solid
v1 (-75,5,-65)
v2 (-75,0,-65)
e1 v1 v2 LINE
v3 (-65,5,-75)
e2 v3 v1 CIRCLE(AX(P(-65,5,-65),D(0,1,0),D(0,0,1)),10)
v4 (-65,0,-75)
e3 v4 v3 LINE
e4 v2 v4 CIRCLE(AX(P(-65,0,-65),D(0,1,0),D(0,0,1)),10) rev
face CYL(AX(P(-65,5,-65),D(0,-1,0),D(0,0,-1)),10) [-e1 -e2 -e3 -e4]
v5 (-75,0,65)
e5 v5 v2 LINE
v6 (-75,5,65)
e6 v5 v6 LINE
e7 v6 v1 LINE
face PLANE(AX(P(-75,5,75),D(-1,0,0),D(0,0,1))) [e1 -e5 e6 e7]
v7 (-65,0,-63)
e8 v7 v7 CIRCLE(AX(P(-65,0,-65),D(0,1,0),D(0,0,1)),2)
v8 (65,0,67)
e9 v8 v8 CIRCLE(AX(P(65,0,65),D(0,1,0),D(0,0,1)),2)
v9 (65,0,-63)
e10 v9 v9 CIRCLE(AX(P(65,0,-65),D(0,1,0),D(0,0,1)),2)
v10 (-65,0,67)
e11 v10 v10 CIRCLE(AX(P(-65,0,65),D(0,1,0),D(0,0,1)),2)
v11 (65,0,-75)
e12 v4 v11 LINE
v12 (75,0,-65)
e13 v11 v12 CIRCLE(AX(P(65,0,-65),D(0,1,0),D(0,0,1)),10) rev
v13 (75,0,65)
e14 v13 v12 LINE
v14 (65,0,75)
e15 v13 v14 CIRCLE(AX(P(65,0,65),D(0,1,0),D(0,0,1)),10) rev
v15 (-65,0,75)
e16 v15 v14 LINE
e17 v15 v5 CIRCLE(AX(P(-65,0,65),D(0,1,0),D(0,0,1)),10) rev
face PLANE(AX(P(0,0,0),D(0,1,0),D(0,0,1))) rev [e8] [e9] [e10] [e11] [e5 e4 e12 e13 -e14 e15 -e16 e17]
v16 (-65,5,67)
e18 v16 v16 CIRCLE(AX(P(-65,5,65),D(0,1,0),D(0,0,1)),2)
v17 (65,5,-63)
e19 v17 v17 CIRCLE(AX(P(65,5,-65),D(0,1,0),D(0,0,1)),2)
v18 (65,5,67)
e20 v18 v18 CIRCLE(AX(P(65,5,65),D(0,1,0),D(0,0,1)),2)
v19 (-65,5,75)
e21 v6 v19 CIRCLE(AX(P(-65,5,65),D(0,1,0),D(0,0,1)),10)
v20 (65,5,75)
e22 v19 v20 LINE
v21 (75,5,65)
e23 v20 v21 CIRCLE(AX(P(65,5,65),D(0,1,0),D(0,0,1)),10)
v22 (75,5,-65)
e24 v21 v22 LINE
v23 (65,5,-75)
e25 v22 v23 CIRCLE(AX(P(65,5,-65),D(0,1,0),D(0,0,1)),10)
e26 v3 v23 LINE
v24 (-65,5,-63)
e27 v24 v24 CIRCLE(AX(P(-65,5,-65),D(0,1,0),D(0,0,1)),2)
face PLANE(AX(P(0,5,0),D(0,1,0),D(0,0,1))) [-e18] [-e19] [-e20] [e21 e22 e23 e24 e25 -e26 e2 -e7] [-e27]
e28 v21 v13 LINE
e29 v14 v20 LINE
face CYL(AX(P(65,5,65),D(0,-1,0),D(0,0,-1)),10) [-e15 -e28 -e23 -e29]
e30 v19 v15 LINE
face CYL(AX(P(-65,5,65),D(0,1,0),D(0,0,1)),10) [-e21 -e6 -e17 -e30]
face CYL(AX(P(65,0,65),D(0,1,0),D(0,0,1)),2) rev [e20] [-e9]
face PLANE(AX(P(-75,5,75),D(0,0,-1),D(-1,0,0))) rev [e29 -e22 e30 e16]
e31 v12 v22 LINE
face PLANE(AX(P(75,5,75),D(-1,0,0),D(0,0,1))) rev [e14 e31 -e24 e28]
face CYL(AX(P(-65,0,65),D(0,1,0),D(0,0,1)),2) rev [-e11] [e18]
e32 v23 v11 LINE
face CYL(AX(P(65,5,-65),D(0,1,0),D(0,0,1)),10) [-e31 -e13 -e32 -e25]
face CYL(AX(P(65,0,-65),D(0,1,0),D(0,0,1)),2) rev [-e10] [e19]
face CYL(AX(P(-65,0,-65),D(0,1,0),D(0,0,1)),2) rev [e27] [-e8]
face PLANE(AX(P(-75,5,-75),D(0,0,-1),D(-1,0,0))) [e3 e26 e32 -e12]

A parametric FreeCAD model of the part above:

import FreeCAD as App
import Part
import Sketcher

V = App.Vector
Q = App.Units.Quantity


def edges_at(feature, points):
    """Names of the edges that pass closest to the given points."""
    edges = feature.Shape.Edges
    near = lambda p: min(range(len(edges)), key=lambda i: edges[i].distToShape(Part.Vertex(*p))[0])
    return sorted({f"Edge{near(p) + 1}" for p in points})

doc = App.newDocument("Part")
body = doc.addObject("PartDesign::Body", "Body")

# Sketch on XZ plane
sketch1 = body.newObject("Sketcher::SketchObject", "Sketch")
sketch1.AttachmentSupport = (doc.getObject("XZ_Plane"), [""])
sketch1.MapMode = "FlatFace"
sketch1.addGeometry(Part.LineSegment(V(-75, -75, 0), V(-75, 75, 0)), False)
sketch1.addGeometry(Part.LineSegment(V(-75, 75, 0), V(75, 75, 0)), False)
sketch1.addGeometry(Part.LineSegment(V(75, 75, 0), V(75, -75, 0)), False)
sketch1.addGeometry(Part.LineSegment(V(75, -75, 0), V(-75, -75, 0)), False)
sketch1.addConstraint(Sketcher.Constraint("Coincident", 0, 2, 1, 1))
sketch1.addConstraint(Sketcher.Constraint("Coincident", 1, 2, 2, 1))
sketch1.addConstraint(Sketcher.Constraint("Coincident", 2, 2, 3, 1))
sketch1.addConstraint(Sketcher.Constraint("Coincident", 3, 2, 0, 1))
sketch1.addConstraint(Sketcher.Constraint("Vertical", 0))
sketch1.addConstraint(Sketcher.Constraint("Horizontal", 1))
sketch1.addConstraint(Sketcher.Constraint("Vertical", 2))
sketch1.addConstraint(Sketcher.Constraint("Horizontal", 3))
sketch1.addConstraint(Sketcher.Constraint("Symmetric", 0, 2, 2, 2, -1, 1))
sketch1.addConstraint(Sketcher.Constraint("Equal", 3, 0))
sketch1.addConstraint(Sketcher.Constraint("DistanceX", 1, 1, 1, 2, Q("150 mm")))
pad1 = body.newObject("PartDesign::Pad", "Pad")
pad1.Profile = sketch1
pad1.Length = 5
pad1.Reversed = True
doc.recompute()

fillet = body.newObject("PartDesign::Fillet", "Fillet")
fillet.Base = (pad1, edges_at(pad1, [
    (-75, 2.5, -75),
    (-75, 2.5, 75),
    (75, 2.5, 75),
    (75, 2.5, -75),
]))
fillet.Radius = 10

# Sketch on XZ plane
sketch2 = body.newObject("Sketcher::SketchObject", "Sketch001")
sketch2.AttachmentSupport = (doc.getObject("XZ_Plane"), [""])
sketch2.MapMode = "FlatFace"
sketch2.AttachmentOffset = App.Placement(V(0, 0, -5), App.Rotation())
sketch2.addGeometry(Part.Circle(V(65, -65, 0), V(0, 0, 1), 2), False)
sketch2.addGeometry(Part.Circle(V(-65, -65, 0), V(0, 0, 1), 2), False)
sketch2.addGeometry(Part.Circle(V(-65, 65, 0), V(0, 0, 1), 2), False)
sketch2.addGeometry(Part.Circle(V(65, 65, 0), V(0, 0, 1), 2), False)
sketch2.addConstraint(Sketcher.Constraint("Equal", 0, 1))
sketch2.addConstraint(Sketcher.Constraint("Equal", 1, 2))
sketch2.addConstraint(Sketcher.Constraint("Equal", 2, 3))
sketch2.addConstraint(Sketcher.Constraint("Symmetric", 0, 3, 2, 3, -1, 1))
sketch2.addConstraint(Sketcher.Constraint("Symmetric", 1, 3, 3, 3, -1, 1))
sketch2.addConstraint(Sketcher.Constraint("Symmetric", 0, 3, 1, 3, -2))
sketch2.addConstraint(Sketcher.Constraint("Diameter", 0, Q("4 mm")))
sketch2.addConstraint(Sketcher.Constraint("DistanceX", -1, 1, 0, 3, Q("65 mm")))
sketch2.addConstraint(Sketcher.Constraint("DistanceY", 0, 3, -1, 1, Q("65 mm")))
pocket1 = body.newObject("PartDesign::Pocket", "Pocket")
pocket1.Profile = sketch2
pocket1.Type = "ThroughAll"
pocket1.Reversed = True

doc.recompute()
